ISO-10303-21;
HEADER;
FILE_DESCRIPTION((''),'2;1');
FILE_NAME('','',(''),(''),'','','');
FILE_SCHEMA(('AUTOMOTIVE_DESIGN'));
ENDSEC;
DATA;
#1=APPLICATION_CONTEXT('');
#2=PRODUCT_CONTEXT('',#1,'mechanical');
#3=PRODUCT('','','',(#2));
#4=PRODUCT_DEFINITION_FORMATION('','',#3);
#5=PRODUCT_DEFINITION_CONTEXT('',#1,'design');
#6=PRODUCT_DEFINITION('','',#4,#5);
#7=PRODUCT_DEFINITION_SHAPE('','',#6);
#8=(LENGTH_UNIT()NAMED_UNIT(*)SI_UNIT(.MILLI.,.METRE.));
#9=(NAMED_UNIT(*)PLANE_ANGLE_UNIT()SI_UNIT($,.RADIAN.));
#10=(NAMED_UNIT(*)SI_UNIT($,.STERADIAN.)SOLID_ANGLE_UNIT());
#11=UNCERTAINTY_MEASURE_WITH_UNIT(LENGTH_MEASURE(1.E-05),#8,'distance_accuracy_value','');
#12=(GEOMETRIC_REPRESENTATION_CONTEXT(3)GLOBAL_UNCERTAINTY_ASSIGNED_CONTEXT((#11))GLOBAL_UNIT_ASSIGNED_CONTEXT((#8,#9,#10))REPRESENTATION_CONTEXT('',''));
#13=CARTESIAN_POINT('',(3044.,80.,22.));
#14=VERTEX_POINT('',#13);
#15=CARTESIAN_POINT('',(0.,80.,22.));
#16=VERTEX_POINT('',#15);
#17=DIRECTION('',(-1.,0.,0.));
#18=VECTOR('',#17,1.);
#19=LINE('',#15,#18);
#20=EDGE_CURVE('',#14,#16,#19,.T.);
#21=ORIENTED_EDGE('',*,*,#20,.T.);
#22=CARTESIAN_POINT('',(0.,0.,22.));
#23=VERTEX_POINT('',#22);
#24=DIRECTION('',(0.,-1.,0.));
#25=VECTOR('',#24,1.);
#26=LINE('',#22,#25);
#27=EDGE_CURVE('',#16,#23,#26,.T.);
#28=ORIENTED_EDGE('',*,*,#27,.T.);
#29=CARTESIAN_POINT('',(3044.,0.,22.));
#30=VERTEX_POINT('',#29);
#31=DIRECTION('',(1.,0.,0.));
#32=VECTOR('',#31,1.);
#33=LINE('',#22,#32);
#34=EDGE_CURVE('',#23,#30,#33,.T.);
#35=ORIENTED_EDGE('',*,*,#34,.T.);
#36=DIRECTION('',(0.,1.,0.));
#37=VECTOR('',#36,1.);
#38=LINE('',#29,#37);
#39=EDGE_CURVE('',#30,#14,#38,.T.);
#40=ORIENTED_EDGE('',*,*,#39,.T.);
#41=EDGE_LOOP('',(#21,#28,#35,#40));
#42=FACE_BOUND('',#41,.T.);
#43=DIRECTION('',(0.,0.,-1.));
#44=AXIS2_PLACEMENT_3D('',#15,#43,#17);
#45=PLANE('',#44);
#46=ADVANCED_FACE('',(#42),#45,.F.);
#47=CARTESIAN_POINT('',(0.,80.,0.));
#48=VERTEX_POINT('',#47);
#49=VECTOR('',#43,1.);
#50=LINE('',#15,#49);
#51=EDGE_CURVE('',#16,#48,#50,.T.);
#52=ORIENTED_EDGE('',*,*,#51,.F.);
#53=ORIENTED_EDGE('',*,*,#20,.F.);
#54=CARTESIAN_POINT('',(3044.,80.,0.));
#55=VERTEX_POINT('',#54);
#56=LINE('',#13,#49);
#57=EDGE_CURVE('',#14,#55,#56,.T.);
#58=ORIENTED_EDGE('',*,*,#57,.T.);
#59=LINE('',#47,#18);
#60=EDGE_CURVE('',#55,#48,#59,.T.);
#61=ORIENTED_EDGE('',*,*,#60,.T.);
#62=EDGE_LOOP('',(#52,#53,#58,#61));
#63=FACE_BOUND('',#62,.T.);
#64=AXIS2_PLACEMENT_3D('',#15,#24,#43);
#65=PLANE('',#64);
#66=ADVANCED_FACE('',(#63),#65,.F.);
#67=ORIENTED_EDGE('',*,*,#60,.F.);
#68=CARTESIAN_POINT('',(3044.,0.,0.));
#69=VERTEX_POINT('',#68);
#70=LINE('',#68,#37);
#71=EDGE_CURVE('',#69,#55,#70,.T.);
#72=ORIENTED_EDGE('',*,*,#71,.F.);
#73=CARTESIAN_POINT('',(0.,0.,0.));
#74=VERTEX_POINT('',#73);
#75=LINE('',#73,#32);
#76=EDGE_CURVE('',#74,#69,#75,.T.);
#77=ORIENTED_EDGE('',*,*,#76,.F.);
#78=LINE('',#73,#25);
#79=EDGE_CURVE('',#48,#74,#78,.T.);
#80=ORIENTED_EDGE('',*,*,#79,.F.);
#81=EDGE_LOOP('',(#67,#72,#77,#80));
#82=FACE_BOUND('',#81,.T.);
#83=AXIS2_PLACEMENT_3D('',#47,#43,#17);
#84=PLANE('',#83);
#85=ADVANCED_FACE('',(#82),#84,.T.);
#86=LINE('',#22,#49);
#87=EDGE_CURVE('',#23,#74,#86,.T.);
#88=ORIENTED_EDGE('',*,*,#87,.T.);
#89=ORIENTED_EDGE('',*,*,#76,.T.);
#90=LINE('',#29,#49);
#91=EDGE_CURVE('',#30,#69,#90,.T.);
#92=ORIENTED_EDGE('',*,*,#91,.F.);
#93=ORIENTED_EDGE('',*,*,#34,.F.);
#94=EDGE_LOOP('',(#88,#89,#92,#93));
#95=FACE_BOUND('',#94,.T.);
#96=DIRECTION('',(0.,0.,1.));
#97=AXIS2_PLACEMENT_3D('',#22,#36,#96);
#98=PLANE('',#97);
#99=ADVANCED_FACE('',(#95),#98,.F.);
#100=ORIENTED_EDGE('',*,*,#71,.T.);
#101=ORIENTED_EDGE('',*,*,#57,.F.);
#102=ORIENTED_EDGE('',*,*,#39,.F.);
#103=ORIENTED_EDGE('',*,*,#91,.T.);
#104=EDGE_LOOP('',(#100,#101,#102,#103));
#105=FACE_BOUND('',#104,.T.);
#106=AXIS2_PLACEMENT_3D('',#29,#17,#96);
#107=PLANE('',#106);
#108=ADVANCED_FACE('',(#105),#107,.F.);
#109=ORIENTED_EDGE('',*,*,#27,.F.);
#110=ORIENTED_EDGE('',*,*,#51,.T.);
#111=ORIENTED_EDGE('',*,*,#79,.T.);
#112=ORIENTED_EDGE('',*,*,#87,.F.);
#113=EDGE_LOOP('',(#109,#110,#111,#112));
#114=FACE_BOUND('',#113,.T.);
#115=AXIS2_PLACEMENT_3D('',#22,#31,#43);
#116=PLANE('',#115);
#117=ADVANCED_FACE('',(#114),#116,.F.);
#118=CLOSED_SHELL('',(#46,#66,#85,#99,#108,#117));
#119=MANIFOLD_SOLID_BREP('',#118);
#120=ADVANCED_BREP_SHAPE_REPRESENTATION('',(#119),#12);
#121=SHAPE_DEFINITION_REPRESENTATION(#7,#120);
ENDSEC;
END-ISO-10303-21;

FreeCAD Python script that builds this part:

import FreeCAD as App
import Part
import Sketcher
from FreeCAD import Vector

doc = App.newDocument("Part")
params = doc.addObject("Spreadsheet::Sheet", "Params")
for row, (alias, value) in enumerate([
    ("sketch1_width", "3044 mm"),
    ("sketch1_height", "80 mm"),
    ("pad1_length", "22 mm"),
], start=1):
    params.set(f"A{row}", alias)
    params.set(f"B{row}", "=" + value)
    params.setAlias(f"B{row}", alias)

body = doc.addObject("PartDesign::Body", "Body")

# Sketch on XY plane
sketch1 = doc.addObject("Sketcher::SketchObject", "Sketch")
body.addObject(sketch1)
sketch1.AttachmentSupport = (doc.XY_Plane, [""])
sketch1.MapMode = "FlatFace"
sketch1.addGeometry([
    Part.LineSegment(Vector(0, 80, 0), Vector(0, 0, 0)),
    Part.LineSegment(Vector(0, 0, 0), Vector(3044, 0, 0)),
    Part.LineSegment(Vector(3044, 0, 0), Vector(3044, 80, 0)),
    Part.LineSegment(Vector(3044, 80, 0), Vector(0, 80, 0)),
], False)
sketch1.addConstraint([
    Sketcher.Constraint("Coincident", 0, 2, 1, 1),
    Sketcher.Constraint("Coincident", 1, 2, 2, 1),
    Sketcher.Constraint("Coincident", 2, 2, 3, 1),
    Sketcher.Constraint("Coincident", 3, 2, 0, 1),
    Sketcher.Constraint("Vertical", 0),
    Sketcher.Constraint("Horizontal", 1),
    Sketcher.Constraint("Vertical", 2),
    Sketcher.Constraint("Horizontal", 3),
    Sketcher.Constraint("Coincident", 0, 2, -1, 1),
    Sketcher.Constraint("DistanceX", 1, 1, 1, 2, 3044.0),
    Sketcher.Constraint("DistanceY", 0, 2, 0, 1, 80.0),
])
sketch1.setExpression("Constraints[9]", "Params.sketch1_width")
sketch1.setExpression("Constraints[10]", "Params.sketch1_height")
pad1 = doc.addObject("PartDesign::Pad", "Pad")
body.addObject(pad1)
pad1.Profile = sketch1
pad1.setExpression("Length", "Params.pad1_length")

doc.recompute()
